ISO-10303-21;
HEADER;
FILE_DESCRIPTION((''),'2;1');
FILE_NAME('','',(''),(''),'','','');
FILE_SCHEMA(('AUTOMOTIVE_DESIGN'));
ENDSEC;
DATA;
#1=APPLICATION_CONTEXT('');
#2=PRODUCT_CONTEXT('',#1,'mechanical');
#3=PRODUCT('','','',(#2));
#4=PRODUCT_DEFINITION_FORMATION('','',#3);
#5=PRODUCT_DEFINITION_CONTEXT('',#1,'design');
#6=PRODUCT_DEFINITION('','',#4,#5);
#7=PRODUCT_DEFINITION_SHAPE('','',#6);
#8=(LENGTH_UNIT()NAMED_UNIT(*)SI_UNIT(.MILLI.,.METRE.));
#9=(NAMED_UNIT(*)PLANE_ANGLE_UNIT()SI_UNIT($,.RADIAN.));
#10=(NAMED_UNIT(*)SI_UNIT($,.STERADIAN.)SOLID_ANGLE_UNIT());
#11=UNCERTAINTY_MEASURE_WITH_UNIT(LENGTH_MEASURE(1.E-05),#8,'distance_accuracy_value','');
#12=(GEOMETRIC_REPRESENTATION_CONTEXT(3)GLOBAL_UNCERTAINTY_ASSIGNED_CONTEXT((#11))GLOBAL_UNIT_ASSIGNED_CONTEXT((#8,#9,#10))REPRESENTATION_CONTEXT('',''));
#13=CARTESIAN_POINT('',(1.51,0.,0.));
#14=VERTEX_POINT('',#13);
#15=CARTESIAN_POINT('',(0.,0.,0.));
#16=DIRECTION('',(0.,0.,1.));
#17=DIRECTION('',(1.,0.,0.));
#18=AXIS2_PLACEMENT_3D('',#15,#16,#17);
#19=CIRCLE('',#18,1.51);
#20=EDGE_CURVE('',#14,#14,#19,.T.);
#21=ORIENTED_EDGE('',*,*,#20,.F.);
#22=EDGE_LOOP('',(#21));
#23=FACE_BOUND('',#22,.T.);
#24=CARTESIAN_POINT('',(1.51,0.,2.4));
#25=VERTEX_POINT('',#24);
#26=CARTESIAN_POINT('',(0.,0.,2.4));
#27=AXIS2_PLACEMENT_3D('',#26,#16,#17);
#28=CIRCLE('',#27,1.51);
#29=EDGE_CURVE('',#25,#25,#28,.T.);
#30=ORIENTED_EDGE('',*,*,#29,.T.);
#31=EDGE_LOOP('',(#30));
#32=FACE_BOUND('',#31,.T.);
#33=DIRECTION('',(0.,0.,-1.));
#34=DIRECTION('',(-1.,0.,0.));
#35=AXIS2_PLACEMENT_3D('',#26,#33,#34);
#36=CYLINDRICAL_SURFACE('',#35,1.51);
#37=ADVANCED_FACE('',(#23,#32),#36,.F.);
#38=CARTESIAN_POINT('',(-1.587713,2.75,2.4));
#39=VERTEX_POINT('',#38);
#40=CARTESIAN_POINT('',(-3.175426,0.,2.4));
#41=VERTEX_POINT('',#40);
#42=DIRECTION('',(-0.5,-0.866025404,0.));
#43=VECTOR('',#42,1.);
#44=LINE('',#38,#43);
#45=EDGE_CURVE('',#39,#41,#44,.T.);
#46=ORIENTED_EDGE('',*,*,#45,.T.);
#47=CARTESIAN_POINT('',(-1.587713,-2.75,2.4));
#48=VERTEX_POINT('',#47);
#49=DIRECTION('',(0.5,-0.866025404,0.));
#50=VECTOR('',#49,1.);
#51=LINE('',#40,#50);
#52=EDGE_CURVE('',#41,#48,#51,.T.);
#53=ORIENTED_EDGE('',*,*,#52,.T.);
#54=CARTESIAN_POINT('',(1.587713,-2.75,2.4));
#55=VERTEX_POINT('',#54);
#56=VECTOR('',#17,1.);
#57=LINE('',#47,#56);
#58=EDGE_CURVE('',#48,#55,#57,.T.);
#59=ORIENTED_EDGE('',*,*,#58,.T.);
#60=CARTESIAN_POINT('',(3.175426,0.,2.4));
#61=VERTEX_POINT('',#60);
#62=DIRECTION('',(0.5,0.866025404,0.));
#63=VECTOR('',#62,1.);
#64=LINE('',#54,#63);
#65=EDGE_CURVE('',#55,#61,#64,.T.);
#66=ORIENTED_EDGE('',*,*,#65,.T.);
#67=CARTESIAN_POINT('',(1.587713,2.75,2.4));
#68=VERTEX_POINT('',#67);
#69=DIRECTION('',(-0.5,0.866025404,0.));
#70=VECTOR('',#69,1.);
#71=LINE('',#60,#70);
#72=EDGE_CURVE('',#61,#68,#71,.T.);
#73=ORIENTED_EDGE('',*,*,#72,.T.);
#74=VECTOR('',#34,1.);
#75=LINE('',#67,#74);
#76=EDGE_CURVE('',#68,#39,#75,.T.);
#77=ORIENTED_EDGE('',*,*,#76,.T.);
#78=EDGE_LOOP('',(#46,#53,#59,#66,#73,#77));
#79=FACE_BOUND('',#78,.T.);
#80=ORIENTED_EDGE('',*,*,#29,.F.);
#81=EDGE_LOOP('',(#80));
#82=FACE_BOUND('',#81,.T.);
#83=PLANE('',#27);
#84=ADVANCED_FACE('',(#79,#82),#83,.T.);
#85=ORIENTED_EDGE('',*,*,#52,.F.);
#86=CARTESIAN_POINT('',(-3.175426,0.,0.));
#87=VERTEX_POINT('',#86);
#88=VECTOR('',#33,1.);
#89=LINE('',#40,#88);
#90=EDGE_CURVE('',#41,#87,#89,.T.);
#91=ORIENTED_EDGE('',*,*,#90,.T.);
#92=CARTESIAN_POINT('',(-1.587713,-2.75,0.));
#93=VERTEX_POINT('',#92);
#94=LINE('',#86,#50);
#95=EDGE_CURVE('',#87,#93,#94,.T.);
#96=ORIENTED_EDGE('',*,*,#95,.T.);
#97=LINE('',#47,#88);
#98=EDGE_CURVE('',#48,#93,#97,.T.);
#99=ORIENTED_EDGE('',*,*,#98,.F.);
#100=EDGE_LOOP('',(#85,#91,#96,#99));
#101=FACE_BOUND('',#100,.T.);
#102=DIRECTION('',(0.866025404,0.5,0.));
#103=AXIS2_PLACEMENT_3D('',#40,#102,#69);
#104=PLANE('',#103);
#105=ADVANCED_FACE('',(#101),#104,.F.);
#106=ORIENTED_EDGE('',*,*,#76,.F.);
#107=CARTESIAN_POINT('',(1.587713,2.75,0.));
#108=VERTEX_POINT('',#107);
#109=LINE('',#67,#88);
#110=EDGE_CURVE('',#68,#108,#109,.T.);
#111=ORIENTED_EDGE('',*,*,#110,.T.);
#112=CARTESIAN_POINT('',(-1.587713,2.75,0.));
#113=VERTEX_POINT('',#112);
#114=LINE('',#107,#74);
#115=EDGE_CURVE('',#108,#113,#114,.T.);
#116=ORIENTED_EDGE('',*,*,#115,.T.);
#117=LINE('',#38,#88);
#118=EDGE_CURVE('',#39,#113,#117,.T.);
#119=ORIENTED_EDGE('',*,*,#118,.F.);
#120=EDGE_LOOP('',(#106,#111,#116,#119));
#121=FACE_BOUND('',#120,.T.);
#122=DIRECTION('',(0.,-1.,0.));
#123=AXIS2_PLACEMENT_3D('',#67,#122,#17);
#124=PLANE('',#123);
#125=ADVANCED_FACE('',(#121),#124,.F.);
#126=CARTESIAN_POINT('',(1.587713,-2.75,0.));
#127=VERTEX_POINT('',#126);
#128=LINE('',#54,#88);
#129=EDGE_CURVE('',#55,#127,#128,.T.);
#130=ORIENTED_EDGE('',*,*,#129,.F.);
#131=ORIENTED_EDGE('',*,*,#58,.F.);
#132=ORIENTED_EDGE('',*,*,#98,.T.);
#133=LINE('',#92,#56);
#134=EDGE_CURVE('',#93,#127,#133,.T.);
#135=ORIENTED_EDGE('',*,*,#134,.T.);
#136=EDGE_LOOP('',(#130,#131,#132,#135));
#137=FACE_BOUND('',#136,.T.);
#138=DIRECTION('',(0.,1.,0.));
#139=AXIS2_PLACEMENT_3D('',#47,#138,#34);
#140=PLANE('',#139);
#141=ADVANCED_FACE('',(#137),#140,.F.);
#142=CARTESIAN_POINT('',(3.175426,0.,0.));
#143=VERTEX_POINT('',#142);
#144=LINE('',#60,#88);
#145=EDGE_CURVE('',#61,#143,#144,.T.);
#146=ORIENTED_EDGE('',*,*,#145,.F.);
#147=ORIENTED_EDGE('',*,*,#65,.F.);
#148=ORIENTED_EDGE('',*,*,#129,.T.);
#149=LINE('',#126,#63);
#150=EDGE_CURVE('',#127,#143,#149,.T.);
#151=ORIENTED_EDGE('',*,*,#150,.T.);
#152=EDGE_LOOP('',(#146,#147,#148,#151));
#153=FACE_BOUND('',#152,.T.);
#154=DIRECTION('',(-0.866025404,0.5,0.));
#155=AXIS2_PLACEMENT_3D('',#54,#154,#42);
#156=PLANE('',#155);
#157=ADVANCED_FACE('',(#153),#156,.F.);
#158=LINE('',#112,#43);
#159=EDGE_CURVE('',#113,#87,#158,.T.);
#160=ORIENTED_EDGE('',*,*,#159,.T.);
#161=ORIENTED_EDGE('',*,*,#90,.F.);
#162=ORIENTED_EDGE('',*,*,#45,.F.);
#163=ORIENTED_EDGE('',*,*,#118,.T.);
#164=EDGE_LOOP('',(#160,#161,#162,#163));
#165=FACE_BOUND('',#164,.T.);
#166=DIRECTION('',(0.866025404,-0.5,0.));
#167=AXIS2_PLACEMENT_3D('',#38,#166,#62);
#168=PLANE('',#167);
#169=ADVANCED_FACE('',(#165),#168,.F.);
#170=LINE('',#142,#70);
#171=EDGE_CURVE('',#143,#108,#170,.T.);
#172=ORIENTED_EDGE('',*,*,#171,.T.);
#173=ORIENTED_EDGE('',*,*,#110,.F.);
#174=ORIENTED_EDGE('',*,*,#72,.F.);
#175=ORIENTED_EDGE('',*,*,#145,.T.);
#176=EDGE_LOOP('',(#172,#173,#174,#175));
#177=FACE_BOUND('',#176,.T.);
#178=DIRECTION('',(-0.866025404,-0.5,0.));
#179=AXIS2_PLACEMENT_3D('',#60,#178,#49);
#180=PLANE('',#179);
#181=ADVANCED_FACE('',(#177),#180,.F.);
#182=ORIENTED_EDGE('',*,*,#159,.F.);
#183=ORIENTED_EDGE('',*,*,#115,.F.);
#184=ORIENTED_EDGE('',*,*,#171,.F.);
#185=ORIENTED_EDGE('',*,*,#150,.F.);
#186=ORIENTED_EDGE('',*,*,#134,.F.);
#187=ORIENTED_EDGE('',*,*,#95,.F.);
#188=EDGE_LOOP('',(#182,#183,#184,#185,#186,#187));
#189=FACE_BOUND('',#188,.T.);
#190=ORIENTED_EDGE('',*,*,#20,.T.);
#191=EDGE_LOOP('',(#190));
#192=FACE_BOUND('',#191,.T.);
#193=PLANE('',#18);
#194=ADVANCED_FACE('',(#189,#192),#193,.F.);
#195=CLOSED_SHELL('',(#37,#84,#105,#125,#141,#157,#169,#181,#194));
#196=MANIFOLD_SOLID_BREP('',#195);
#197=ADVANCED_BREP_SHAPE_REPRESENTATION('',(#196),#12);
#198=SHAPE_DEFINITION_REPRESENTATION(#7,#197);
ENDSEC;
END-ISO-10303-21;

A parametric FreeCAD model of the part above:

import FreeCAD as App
import Part
import Sketcher
from FreeCAD import Vector
Q = App.Units.Quantity

doc = App.newDocument("Part")
body = doc.addObject("PartDesign::Body", "Body")

# Sketch on XY plane
sketch1 = doc.addObject("Sketcher::SketchObject", "Sketch")
body.addObject(sketch1)
sketch1.AttachmentSupport = (doc.XY_Plane, [""])
sketch1.MapMode = "FlatFace"
sketch1.addGeometry([
    Part.LineSegment(Vector(3.2, 0, 0), Vector(1.6, 2.8, 0)),  # 0
    Part.LineSegment(Vector(1.6, 2.8, 0), Vector(-1.6, 2.8, 0)),  # 1
    Part.LineSegment(Vector(-1.6, 2.8, 0), Vector(-3.2, 0, 0)),  # 2
    Part.LineSegment(Vector(-3.2, 0, 0), Vector(-1.6, -2.8, 0)),  # 3
    Part.LineSegment(Vector(-1.6, -2.8, 0), Vector(1.6, -2.8, 0)),  # 4
    Part.LineSegment(Vector(1.6, -2.8, 0), Vector(3.2, 0, 0)),  # 5
    Part.Circle(Vector(0, 0, 0), Vector(0, 0, 1), 1.5),  # 6
], False)
sketch1.addConstraint([
    Sketcher.Constraint("Coincident", 0, 2, 1, 1),
    Sketcher.Constraint("Coincident", 1, 2, 2, 1),
    Sketcher.Constraint("Coincident", 2, 2, 3, 1),
    Sketcher.Constraint("Coincident", 3, 2, 4, 1),
    Sketcher.Constraint("Coincident", 4, 2, 5, 1),
    Sketcher.Constraint("Coincident", 5, 2, 0, 1),
    Sketcher.Constraint("Horizontal", 1),
    Sketcher.Constraint("Horizontal", 4),
    Sketcher.Constraint("Coincident", 6, 3, -1, 1),
    Sketcher.Constraint("Symmetric", 0, 2, 3, 2, -1, 1),
    Sketcher.Constraint("Symmetric", 2, 2, 5, 2, -1, 1),
    Sketcher.Constraint("PointOnObject", 2, 2, -1),
    Sketcher.Constraint("Parallel", 2, 5),
    Sketcher.Constraint("Vertical", 1, 2, 3, 2),
    Sketcher.Constraint("Diameter", 6, 3.02),
    Sketcher.Constraint("Angle", 0, Q("120 deg")),
    Sketcher.Constraint("DistanceY", 3, 2, 1, 2, 5.5),
    Sketcher.Constraint("DistanceX", 1, 2, 1, 1, 3.175426),
])
pad1 = doc.addObject("PartDesign::Pad", "Pad")
body.addObject(pad1)
pad1.Profile = sketch1
pad1.Length = 2.4

doc.recompute()
